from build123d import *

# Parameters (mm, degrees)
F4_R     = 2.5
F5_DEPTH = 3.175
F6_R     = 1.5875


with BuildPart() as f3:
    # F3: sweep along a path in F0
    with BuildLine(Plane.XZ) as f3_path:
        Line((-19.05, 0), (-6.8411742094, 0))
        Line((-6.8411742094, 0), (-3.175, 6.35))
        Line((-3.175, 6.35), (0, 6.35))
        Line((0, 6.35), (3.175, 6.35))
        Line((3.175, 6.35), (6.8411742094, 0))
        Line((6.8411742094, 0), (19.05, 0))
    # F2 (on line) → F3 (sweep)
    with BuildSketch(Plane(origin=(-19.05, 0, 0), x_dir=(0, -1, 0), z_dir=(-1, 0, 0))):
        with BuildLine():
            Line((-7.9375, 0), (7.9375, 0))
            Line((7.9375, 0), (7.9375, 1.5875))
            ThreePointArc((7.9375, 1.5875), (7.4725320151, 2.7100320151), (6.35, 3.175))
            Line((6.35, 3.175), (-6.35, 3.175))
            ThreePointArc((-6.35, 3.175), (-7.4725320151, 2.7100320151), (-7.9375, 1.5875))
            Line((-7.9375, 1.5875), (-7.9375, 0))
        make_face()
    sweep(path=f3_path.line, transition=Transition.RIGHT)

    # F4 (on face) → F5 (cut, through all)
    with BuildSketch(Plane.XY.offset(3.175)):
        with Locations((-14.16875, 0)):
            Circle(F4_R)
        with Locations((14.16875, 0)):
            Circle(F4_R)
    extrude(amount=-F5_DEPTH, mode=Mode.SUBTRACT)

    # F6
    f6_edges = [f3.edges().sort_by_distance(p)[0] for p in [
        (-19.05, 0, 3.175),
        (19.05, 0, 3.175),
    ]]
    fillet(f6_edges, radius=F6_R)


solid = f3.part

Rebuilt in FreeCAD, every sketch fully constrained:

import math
import FreeCAD as App
import Part
import Sketcher
Q = App.Units.Quantity


def edges_at(feature, points):
    """Names of the edges that pass closest to the given points."""
    edges = feature.Shape.Edges
    near = lambda p: min(range(len(edges)), key=lambda i: edges[i].distToShape(Part.Vertex(*p))[0])
    return sorted({f"Edge{near(p) + 1}" for p in points})

doc = App.newDocument("Part")
body = doc.addObject("PartDesign::Body", "Body")

sketch1 = body.newObject("Sketcher::SketchObject", "Sketch")
sketch1.AttachmentSupport = (doc.getObject("YZ_Plane"), [""])
sketch1.MapMode = "FlatFace"
sketch1.AttachmentOffset = App.Placement(App.Vector(0, 0, -0.75 * 25.4), App.Rotation())
sketch1.addGeometry([
    Part.LineSegment(App.Vector(7.9375, 0, 0), App.Vector(-7.9375, 0, 0)),
    Part.LineSegment(App.Vector(-7.9375, 0, 0), App.Vector(-7.9375, 1.5875, 0)),
    Part.ArcOfCircle(Part.Circle(App.Vector(-6.35, 1.5875, 0), App.Vector(0, 0, 1), 1.5875), math.radians(90), math.radians(180)),
    Part.LineSegment(App.Vector(-6.35, 3.175, 0), App.Vector(6.35, 3.175, 0)),
    Part.ArcOfCircle(Part.Circle(App.Vector(6.35, 1.5875, 0), App.Vector(0, 0, 1), 1.5875), math.radians(0), math.radians(90)),
    Part.LineSegment(App.Vector(7.9375, 1.5875, 0), App.Vector(7.9375, 0, 0)),
], False)
sketch1.addConstraint([
    Sketcher.Constraint("Coincident", 0, 2, 1, 1),
    Sketcher.Constraint("Tangent", 1, 2, 2, 2),
    Sketcher.Constraint("Tangent", 2, 1, 3, 1),
    Sketcher.Constraint("Tangent", 3, 2, 4, 2),
    Sketcher.Constraint("Tangent", 4, 1, 5, 1),
    Sketcher.Constraint("Coincident", 5, 2, 0, 1),
    Sketcher.Constraint("Horizontal", 0),
    Sketcher.Constraint("Vertical", 1),
    Sketcher.Constraint("Horizontal", 3),
    Sketcher.Constraint("Vertical", 5),
    Sketcher.Constraint("Equal", 2, 4),
    Sketcher.Constraint("Symmetric", 0, 2, 5, 2, -1, 1),
    Sketcher.Constraint("DistanceX", 3, 1, 3, 2, Q("0.5 in")),
    Sketcher.Constraint("Radius", 2, Q("0.0625 in")),
    Sketcher.Constraint("DistanceY", 1, 1, 1, 2, Q("0.0625 in")),
])

sketch2 = body.newObject("Sketcher::SketchObject", "Sketch001")
sketch2.AttachmentSupport = (doc.getObject("XZ_Plane"), [""])
sketch2.MapMode = "FlatFace"
sketch2.addGeometry([
    Part.LineSegment(App.Vector(-19.05, 0, 0), App.Vector(-6.841174, 0, 0)),
    Part.LineSegment(App.Vector(-6.841174, 0, 0), App.Vector(-3.175, 6.35, 0)),
    Part.LineSegment(App.Vector(-3.175, 6.35, 0), App.Vector(3.175, 6.35, 0)),
    Part.LineSegment(App.Vector(3.175, 6.35, 0), App.Vector(6.841174, 0, 0)),
    Part.LineSegment(App.Vector(6.841174, 0, 0), App.Vector(19.05, 0, 0)),
], False)
sketch2.addConstraint([
    Sketcher.Constraint("Coincident", 0, 2, 1, 1),
    Sketcher.Constraint("Coincident", 1, 2, 2, 1),
    Sketcher.Constraint("Coincident", 2, 2, 3, 1),
    Sketcher.Constraint("Coincident", 3, 2, 4, 1),
    Sketcher.Constraint("Horizontal", 0),
    Sketcher.Constraint("Horizontal", 2),
    Sketcher.Constraint("Horizontal", 4),
    Sketcher.Constraint("Symmetric", 0, 2, 3, 2, -1, 1),
    Sketcher.Constraint("Symmetric", 0, 1, 4, 2, -2),
    Sketcher.Constraint("Equal", 1, 3),
    Sketcher.Constraint("Angle", 1, Q("60 deg")),
    Sketcher.Constraint("DistanceX", 2, 1, 2, 2, Q("0.25 in")),
    Sketcher.Constraint("DistanceX", 0, 1, 4, 2, Q("1.5 in")),
    Sketcher.Constraint("DistanceY", -1, 1, 1, 2, Q("0.25 in")),
])
doc.recompute()

additivepipe = body.newObject("PartDesign::AdditivePipe", "AdditivePipe")
additivepipe.Profile = sketch1
additivepipe.Spine = (sketch2, ["Edge1", "Edge2", "Edge3", "Edge4", "Edge5"])
additivepipe.Transition = "Right corner"

sketch3 = body.newObject("Sketcher::SketchObject", "Sketch002")
sketch3.AttachmentSupport = (doc.getObject("XY_Plane"), [""])
sketch3.MapMode = "FlatFace"
sketch3.AttachmentOffset = App.Placement(App.Vector(0, 0, 0.125 * 25.4), App.Rotation())
sketch3.addGeometry([
    Part.Circle(App.Vector(-14.16875, 0, 0), App.Vector(0, 0, 1), 2.5),
    Part.Circle(App.Vector(14.16875, 0, 0), App.Vector(0, 0, 1), 2.5),
], False)
sketch3.addConstraint([
    Sketcher.Constraint("Equal", 0, 1),
    Sketcher.Constraint("Symmetric", 0, 3, 1, 3, -1, 1),
    Sketcher.Constraint("PointOnObject", 0, 3, -1),
    Sketcher.Constraint("Diameter", 0, Q("5 mm")),
    Sketcher.Constraint("DistanceX", 0, 3, 1, 3, Q("28.3375 mm")),
])
pocket1 = body.newObject("PartDesign::Pocket", "Pocket")
pocket1.Profile = sketch3
pocket1.Type = "ThroughAll"
doc.recompute()

fillet = body.newObject("PartDesign::Fillet", "Fillet")
fillet.Base = (pocket1, edges_at(pocket1, [(-19.05, 0, 3.175), (19.05, 0, 3.175)]))
fillet.Radius = Q("0.0625 in")

doc.recompute()
